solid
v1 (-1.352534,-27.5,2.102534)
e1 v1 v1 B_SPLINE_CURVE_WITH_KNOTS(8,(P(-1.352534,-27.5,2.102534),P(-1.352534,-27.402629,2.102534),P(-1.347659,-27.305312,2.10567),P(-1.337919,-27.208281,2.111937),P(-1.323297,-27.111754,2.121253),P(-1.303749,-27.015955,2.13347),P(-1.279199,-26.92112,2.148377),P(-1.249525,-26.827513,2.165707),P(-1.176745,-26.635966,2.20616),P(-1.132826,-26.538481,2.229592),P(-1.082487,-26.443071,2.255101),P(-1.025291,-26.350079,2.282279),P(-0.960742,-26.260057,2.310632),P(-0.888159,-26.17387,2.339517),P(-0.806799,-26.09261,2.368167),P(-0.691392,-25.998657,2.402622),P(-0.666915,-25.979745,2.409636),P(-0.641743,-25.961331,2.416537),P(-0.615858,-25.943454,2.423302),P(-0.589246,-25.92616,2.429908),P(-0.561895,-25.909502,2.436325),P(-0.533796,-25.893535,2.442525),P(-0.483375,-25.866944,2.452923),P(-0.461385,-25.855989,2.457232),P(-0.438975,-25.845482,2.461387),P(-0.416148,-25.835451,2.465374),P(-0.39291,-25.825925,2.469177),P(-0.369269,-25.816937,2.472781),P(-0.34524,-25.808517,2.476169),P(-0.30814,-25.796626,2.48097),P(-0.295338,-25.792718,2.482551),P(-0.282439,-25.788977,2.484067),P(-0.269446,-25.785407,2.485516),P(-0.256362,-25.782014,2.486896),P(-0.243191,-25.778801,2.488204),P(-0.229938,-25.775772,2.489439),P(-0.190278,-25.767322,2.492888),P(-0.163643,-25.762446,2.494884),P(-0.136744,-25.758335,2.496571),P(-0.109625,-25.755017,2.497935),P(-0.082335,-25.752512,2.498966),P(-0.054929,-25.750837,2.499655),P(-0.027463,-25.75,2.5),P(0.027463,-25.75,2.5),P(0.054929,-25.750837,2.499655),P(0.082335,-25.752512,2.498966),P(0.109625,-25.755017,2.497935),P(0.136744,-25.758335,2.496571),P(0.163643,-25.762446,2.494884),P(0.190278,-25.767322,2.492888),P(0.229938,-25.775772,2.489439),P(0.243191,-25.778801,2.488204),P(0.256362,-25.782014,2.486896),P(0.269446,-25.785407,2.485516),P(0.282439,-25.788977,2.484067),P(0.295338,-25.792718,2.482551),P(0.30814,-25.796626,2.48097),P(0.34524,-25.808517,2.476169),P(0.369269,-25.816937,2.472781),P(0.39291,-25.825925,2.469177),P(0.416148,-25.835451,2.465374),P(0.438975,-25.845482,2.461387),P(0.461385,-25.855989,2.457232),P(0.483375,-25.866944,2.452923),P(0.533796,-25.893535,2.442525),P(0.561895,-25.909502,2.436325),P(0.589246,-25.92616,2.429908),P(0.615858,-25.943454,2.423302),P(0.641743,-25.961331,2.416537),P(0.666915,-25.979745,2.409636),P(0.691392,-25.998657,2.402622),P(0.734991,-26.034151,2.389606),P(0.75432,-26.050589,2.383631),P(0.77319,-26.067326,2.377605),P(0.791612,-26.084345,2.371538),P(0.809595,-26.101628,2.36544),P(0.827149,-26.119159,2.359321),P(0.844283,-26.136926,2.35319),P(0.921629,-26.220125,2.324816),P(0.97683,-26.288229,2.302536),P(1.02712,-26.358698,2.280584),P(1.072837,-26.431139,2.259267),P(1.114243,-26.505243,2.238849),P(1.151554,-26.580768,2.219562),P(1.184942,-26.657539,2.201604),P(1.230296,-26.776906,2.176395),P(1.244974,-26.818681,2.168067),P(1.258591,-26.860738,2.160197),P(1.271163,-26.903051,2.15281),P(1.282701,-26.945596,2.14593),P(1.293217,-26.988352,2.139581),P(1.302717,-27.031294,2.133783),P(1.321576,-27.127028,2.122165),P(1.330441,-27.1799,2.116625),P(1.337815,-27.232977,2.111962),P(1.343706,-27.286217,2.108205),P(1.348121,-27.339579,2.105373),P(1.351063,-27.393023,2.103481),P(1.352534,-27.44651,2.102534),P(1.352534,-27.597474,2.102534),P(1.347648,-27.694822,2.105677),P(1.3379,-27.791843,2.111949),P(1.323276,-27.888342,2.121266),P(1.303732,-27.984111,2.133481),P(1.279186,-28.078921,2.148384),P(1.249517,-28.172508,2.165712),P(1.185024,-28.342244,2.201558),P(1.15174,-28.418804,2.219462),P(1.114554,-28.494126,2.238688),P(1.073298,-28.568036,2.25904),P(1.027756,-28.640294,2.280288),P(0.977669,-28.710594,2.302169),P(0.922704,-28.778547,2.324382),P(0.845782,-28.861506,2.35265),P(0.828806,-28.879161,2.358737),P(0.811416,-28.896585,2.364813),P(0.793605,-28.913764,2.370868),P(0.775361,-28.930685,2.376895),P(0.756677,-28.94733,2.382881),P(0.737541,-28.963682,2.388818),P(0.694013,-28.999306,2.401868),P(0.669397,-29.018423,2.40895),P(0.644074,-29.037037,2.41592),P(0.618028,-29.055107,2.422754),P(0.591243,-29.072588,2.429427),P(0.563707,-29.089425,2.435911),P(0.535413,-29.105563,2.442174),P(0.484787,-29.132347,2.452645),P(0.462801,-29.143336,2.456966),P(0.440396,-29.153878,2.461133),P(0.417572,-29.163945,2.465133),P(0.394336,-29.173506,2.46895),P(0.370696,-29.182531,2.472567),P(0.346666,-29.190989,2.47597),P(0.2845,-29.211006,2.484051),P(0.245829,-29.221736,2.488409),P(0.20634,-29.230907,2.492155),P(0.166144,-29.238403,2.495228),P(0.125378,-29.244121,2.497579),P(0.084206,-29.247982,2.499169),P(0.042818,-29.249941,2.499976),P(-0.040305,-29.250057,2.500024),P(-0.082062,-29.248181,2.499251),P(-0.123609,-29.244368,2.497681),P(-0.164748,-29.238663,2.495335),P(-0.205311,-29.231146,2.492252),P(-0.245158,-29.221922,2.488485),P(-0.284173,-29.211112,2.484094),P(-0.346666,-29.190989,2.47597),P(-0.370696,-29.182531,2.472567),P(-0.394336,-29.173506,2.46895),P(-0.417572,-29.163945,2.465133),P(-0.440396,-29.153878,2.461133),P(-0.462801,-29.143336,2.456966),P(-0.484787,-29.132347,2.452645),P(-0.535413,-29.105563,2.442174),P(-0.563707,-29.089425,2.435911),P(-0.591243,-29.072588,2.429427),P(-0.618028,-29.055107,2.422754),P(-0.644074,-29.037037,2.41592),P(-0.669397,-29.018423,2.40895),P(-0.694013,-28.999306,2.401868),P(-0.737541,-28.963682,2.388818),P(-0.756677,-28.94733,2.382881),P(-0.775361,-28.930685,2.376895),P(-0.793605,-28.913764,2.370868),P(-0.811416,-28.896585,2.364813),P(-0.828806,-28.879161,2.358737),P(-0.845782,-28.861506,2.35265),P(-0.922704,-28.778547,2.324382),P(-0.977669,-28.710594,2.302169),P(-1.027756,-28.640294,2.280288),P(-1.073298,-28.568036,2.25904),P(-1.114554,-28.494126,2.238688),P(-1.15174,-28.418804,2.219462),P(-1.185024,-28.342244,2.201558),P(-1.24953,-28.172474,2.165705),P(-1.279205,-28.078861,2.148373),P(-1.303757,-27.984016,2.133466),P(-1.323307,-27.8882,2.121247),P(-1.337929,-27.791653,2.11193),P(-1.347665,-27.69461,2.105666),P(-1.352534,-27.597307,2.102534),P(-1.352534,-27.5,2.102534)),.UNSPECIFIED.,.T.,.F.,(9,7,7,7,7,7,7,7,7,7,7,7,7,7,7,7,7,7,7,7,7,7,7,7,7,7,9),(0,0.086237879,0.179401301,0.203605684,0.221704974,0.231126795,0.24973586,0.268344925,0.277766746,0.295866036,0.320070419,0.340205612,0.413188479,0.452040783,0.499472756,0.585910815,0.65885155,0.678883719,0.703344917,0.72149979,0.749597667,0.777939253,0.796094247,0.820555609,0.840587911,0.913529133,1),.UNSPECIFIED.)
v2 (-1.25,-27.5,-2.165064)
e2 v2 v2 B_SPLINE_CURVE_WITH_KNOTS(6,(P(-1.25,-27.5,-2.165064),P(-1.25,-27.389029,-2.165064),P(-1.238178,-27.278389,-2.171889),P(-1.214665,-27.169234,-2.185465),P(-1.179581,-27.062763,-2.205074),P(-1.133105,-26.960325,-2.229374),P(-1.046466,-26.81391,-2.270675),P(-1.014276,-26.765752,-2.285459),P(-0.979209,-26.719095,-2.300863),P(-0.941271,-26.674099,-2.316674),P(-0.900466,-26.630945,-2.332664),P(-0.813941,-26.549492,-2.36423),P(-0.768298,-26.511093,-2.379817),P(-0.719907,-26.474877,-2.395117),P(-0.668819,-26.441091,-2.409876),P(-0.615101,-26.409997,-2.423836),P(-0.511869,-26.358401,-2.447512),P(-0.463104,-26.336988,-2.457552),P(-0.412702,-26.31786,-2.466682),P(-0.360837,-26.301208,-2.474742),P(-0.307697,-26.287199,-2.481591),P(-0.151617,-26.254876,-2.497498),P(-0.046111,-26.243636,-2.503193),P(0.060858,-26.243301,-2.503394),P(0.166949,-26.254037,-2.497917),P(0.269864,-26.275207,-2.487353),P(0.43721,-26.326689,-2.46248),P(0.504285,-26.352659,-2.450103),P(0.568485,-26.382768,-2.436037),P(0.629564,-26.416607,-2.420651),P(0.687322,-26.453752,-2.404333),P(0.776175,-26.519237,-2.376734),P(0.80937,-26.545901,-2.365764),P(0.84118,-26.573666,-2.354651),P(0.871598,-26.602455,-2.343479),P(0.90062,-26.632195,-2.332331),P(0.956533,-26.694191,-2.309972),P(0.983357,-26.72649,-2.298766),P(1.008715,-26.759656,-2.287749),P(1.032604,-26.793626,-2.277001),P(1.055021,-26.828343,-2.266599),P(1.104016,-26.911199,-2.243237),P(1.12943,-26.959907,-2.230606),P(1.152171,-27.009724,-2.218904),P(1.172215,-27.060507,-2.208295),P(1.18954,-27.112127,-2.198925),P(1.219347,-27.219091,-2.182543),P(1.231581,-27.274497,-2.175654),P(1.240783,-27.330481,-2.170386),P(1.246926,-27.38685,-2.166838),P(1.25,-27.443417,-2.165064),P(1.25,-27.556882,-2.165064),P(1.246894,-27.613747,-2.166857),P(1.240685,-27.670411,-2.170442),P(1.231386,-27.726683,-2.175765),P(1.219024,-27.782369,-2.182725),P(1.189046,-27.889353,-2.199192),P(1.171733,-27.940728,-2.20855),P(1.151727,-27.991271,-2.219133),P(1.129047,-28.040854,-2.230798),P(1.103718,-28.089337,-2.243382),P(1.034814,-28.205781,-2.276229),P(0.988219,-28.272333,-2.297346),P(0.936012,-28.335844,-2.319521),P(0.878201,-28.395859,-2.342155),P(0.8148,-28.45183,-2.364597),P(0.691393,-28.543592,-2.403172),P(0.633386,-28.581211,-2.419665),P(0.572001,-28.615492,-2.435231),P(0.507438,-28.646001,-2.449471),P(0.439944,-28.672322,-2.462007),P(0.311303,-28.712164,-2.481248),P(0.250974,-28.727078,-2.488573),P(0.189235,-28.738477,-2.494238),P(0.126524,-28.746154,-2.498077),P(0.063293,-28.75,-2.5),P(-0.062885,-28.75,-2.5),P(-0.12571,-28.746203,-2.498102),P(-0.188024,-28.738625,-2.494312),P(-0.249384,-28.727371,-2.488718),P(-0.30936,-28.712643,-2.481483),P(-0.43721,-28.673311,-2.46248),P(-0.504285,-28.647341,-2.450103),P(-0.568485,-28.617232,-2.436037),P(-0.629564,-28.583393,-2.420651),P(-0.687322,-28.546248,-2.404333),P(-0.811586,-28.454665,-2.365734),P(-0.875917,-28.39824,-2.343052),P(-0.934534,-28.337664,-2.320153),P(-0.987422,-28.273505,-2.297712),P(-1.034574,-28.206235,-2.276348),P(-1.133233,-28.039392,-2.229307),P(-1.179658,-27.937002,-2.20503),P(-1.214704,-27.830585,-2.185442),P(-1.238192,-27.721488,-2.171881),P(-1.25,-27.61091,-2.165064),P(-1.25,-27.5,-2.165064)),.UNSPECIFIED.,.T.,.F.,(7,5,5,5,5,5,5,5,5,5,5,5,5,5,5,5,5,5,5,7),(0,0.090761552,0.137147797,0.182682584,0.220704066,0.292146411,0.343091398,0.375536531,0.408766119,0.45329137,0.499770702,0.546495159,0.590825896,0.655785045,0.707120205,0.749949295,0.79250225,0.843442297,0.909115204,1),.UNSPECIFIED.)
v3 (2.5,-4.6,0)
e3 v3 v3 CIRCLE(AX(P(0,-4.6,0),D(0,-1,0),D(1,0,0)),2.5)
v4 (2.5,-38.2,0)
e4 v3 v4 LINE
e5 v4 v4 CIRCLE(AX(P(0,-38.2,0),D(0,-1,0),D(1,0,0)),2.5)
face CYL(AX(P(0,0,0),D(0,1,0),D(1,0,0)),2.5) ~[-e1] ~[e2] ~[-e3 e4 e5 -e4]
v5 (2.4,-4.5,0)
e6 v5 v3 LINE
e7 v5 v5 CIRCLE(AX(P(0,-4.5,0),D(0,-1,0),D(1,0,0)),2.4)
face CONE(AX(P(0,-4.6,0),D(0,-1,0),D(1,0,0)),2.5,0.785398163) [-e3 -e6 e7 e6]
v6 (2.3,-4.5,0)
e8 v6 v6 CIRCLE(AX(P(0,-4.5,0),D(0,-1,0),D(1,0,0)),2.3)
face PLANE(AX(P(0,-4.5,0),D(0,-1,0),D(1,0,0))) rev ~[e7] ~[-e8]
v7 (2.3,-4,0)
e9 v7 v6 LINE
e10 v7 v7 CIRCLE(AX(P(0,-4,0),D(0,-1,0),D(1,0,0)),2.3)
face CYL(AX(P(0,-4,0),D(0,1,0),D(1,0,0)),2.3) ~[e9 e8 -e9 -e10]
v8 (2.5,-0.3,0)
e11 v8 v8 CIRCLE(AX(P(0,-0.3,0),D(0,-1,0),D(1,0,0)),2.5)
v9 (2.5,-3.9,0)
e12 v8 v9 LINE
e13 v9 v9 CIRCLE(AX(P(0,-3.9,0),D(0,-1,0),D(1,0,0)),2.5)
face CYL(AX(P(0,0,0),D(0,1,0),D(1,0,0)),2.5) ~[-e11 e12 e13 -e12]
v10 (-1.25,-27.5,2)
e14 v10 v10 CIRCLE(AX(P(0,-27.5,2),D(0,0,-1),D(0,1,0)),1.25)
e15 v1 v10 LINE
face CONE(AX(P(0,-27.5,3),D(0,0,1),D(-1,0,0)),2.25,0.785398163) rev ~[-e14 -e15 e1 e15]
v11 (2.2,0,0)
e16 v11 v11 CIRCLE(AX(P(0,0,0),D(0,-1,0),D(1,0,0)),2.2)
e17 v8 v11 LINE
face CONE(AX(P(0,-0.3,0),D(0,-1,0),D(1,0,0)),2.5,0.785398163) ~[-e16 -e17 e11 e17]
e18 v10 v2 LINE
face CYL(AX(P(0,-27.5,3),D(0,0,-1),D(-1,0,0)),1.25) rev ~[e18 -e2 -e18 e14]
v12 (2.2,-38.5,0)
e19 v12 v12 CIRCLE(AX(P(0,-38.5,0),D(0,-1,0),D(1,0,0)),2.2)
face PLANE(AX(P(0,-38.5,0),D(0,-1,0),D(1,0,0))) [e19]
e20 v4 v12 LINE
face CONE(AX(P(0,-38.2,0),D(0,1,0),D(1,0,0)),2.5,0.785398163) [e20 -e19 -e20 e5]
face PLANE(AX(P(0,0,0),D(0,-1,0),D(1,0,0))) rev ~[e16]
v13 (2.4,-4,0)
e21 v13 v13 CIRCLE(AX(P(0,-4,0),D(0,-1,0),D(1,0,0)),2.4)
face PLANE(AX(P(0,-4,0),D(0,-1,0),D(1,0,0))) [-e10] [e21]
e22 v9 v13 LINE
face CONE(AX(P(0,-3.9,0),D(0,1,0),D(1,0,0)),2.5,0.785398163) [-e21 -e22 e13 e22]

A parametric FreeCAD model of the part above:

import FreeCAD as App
import Part
import Sketcher

V = App.Vector
Q = App.Units.Quantity


def edges_at(feature, points):
    """Names of the edges that pass closest to the given points."""
    edges = feature.Shape.Edges
    near = lambda p: min(range(len(edges)), key=lambda i: edges[i].distToShape(Part.Vertex(*p))[0])
    return sorted({f"Edge{near(p) + 1}" for p in points})

doc = App.newDocument("Part")
body = doc.addObject("PartDesign::Body", "Body")

# Sketch on XZ plane
sketch1 = body.newObject("Sketcher::SketchObject", "Sketch")
sketch1.AttachmentSupport = (doc.getObject("XZ_Plane"), [""])
sketch1.MapMode = "FlatFace"
sketch1.addGeometry(Part.Circle(V(0, 0, 0), V(0, 0, 1), 2.5), False)
sketch1.addConstraint([
    Sketcher.Constraint("Coincident", 0, 3, -1, 1),
    Sketcher.Constraint("Diameter", 0, Q("5 mm")),
])
pad1 = body.newObject("PartDesign::Pad", "Pad")
pad1.Profile = sketch1
pad1.Length = 38.5
doc.recompute()

chamfer = body.newObject("PartDesign::Chamfer", "Chamfer")
chamfer.Base = (pad1, edges_at(pad1, [(-2.5, -38.5, 0), (-2.5, 0, 0)]))
chamfer.Size = 0.3

# Sketch on XY plane
sketch2 = body.newObject("Sketcher::SketchObject", "Sketch001")
sketch2.AttachmentSupport = (doc.getObject("XY_Plane"), [""])
sketch2.MapMode = "FlatFace"
sketch2.AttachmentOffset = App.Placement(V(0, 0, 3), App.Rotation())
sketch2.addGeometry(Part.Circle(V(0, -27.5, 0), V(0, 0, 1), 1.2), False)
sketch2.addConstraint([
    Sketcher.Constraint("PointOnObject", 0, 3, -2),
    Sketcher.Constraint("Diameter", 0, Q("2.5 mm")),
    Sketcher.Constraint("DistanceY", 0, 3, -1, 1, Q("27.5 mm")),
])
doc.recompute()
hole = body.newObject("PartDesign::Hole", "Hole")
hole.Profile = sketch2
hole.ThreadType = "None"
hole.Diameter = 2.5
hole.DepthType = "ThroughAll"
hole.HoleCutType = "Countersink"
hole.HoleCutDiameter = 4.5
hole.HoleCutCountersinkAngle = 90

# Sketch on XZ plane
sketch3 = body.newObject("Sketcher::SketchObject", "Sketch002")
sketch3.AttachmentSupport = (doc.getObject("XZ_Plane"), [""])
sketch3.MapMode = "FlatFace"
sketch3.AttachmentOffset = App.Placement(V(0, 0, 4), App.Rotation())
sketch3.addGeometry([
    Part.Circle(V(0, 0, 0), V(0, 0, 1), 2.5),
    Part.Circle(V(0, 0, 0), V(0, 0, 1), 2.3),
], False)
sketch3.addConstraint([
    Sketcher.Constraint("Coincident", 0, 3, -1, 1),
    Sketcher.Constraint("Coincident", 1, 3, -1, 1),
    Sketcher.Constraint("Diameter", 0, Q("5 mm")),
    Sketcher.Constraint("Diameter", 1, Q("4.6 mm")),
])
pocket1 = body.newObject("PartDesign::Pocket", "Pocket")
pocket1.Profile = sketch3
pocket1.Length = 0.5
pocket1.Reversed = True
doc.recompute()

chamfer2 = body.newObject("PartDesign::Chamfer", "Chamfer001")
chamfer2.Base = (pocket1, edges_at(pocket1, [(-2.5, -4, 0), (-2.5, -4.5, 0)]))
chamfer2.Size = 0.1

doc.recompute()
